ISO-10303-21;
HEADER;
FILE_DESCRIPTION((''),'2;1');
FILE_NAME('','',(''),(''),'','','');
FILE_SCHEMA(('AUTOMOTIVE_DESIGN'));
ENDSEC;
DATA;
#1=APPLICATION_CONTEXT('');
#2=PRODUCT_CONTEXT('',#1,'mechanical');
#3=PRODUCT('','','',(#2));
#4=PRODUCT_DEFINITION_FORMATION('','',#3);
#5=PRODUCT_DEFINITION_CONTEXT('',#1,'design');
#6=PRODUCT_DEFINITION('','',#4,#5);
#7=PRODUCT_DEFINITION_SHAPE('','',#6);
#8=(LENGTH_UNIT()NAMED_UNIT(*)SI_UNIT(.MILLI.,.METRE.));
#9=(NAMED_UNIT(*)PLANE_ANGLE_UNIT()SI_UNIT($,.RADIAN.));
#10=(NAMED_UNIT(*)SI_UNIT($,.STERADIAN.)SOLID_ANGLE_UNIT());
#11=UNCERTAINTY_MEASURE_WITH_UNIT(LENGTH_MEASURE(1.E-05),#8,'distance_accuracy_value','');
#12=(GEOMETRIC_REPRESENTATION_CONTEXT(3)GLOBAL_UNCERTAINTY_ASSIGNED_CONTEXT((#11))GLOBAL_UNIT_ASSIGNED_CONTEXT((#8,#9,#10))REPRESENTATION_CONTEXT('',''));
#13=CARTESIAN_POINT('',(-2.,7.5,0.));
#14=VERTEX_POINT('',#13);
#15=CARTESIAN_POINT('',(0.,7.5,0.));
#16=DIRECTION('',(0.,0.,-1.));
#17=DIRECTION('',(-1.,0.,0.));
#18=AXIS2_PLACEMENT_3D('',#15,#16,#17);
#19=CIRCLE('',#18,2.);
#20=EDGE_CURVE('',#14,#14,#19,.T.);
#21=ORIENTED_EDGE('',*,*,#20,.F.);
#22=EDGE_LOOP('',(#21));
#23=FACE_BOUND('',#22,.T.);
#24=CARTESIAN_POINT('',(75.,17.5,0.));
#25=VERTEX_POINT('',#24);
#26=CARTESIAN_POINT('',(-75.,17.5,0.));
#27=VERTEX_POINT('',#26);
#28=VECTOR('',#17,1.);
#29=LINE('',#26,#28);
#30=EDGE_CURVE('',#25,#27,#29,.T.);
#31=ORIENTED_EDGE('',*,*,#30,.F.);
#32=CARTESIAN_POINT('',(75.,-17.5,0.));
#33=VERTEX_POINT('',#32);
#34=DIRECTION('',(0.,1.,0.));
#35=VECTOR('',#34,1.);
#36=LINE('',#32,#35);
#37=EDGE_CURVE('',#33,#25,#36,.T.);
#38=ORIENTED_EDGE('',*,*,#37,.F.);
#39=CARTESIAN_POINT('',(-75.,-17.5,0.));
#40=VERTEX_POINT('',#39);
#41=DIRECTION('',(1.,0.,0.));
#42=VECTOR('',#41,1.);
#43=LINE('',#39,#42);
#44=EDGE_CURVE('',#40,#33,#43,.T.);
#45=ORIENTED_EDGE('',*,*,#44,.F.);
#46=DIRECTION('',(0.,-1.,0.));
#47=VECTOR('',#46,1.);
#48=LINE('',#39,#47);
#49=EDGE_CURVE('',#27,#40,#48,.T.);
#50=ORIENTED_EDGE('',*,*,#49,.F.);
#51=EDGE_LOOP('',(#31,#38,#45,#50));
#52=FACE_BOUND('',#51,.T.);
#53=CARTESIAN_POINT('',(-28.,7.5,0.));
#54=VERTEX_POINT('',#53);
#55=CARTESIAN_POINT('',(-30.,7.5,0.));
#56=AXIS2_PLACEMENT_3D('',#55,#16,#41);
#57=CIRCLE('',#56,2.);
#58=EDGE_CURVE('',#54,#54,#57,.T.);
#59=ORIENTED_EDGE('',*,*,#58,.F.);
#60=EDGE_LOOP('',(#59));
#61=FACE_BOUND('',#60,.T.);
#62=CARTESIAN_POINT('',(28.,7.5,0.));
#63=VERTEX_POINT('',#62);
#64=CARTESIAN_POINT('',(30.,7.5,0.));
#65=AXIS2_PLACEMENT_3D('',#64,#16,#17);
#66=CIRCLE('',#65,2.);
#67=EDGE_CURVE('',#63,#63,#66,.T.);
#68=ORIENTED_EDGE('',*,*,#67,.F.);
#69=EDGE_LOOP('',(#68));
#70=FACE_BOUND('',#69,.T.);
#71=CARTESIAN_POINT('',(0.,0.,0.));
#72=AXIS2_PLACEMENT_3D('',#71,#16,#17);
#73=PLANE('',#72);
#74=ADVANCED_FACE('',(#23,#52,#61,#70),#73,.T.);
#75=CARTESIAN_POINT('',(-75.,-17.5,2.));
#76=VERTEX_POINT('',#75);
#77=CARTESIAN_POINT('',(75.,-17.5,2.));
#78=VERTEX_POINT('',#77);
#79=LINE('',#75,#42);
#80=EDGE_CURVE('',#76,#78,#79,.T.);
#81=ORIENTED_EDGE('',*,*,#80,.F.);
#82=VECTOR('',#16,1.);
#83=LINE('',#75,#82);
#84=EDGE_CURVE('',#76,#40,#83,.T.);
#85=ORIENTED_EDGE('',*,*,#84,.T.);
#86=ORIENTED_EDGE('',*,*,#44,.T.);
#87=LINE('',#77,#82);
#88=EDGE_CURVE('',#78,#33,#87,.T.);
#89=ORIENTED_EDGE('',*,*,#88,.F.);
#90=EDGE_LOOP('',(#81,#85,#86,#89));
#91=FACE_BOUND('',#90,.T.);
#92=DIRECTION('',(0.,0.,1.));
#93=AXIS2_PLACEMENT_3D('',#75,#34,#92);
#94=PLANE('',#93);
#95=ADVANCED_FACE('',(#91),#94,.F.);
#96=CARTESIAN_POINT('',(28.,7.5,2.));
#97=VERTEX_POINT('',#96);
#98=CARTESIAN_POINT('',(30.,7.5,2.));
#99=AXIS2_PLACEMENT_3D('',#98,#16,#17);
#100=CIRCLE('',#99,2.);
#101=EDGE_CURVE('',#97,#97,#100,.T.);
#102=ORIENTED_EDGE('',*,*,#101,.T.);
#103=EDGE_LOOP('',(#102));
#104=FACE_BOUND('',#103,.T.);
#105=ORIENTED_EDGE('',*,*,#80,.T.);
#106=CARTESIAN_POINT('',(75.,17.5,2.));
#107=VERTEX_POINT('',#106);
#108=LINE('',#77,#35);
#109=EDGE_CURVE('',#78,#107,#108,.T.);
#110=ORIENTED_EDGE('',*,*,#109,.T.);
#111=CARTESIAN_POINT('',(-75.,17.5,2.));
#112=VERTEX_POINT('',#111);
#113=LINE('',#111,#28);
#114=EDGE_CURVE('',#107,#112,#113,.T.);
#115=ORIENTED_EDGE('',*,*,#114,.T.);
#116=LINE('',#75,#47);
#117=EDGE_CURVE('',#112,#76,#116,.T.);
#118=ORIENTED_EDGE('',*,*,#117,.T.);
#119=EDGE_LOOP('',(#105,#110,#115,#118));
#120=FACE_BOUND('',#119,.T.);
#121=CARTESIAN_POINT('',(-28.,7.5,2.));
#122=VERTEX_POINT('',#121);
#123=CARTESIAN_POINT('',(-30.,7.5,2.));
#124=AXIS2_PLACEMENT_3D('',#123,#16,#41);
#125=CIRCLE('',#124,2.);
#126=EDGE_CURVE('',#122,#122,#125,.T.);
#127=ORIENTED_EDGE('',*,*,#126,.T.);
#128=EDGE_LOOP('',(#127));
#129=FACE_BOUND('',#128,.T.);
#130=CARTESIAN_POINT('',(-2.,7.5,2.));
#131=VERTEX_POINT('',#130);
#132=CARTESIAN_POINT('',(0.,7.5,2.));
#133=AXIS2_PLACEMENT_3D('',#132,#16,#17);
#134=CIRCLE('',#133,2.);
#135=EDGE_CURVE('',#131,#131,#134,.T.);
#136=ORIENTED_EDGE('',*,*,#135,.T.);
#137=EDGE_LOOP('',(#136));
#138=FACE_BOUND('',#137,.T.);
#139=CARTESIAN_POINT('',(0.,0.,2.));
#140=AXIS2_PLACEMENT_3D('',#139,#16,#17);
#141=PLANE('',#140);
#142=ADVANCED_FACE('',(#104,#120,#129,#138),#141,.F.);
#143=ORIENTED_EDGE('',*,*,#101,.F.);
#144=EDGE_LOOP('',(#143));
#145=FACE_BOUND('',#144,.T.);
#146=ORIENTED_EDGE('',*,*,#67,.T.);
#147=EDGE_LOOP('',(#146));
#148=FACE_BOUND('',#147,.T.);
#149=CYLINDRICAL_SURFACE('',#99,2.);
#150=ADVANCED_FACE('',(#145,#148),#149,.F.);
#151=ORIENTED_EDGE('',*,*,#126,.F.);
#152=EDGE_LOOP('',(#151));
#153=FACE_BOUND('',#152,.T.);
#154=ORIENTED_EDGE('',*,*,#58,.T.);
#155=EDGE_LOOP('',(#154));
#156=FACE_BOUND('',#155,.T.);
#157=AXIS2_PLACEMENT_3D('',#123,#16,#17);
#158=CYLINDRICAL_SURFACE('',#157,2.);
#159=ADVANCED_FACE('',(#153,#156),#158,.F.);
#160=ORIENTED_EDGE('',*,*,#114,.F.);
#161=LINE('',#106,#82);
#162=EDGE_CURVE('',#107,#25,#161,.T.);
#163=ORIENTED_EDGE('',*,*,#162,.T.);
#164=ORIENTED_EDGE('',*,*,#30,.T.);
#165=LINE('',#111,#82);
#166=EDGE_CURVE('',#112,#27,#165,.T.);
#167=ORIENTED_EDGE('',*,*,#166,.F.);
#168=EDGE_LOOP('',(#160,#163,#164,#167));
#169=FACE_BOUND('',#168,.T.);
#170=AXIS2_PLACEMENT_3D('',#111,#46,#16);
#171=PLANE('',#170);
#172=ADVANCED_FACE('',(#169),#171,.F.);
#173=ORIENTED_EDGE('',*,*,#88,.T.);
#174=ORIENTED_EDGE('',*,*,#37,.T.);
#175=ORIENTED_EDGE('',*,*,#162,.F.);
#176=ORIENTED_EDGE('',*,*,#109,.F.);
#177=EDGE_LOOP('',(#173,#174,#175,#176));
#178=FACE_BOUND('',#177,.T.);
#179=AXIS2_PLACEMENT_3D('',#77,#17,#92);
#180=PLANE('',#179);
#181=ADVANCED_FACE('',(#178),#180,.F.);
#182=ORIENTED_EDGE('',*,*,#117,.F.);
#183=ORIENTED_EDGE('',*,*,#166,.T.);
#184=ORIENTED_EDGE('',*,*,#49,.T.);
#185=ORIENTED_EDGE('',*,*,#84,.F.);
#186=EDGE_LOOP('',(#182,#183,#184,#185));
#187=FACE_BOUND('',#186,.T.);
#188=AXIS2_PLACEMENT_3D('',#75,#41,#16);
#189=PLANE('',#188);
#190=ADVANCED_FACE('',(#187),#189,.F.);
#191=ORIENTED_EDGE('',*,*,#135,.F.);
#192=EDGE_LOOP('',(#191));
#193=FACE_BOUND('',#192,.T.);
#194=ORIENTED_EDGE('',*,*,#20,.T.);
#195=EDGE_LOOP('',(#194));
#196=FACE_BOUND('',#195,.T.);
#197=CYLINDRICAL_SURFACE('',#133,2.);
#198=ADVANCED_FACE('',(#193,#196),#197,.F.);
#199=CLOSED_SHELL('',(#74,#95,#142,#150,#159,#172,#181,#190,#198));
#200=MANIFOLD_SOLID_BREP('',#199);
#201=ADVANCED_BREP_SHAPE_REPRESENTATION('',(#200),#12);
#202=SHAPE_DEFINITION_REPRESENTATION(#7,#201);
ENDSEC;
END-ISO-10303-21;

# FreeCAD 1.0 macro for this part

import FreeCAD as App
import Part
import Sketcher
from FreeCAD import Vector


def add_polygon(sketch, points):
    """Adds a closed chain of lines whose ends are joined by coincident constraints."""
    first, n = sketch.GeometryCount, len(points)
    for a, b in zip(points, points[1:] + points[:1]):
        sketch.addGeometry(Part.LineSegment(App.Vector(*a, 0), App.Vector(*b, 0)), False)
    for i in range(n):
        sketch.addConstraint(Sketcher.Constraint("Coincident", first + i, 2, first + (i + 1) % n, 1))

doc = App.newDocument("Part")
body = doc.addObject("PartDesign::Body", "Body")

# Sketch on XY plane
sketch1 = body.newObject("Sketcher::SketchObject", "Sketch")
sketch1.AttachmentSupport = (doc.getObject("XY_Plane"), [""])
sketch1.MapMode = "FlatFace"
add_polygon(sketch1, [(-75, 17.5), (-75, -17.5), (75, -17.5), (75, 17.5)])  # lines 0-3
sketch1.addConstraint([
    Sketcher.Constraint("Vertical", 0),
    Sketcher.Constraint("Horizontal", 1),
    Sketcher.Constraint("Vertical", 2),
    Sketcher.Constraint("Horizontal", 3),
    Sketcher.Constraint("Symmetric", 0, 2, 2, 2, -1, 1),
    Sketcher.Constraint("DistanceX", 1, 1, 1, 2, 150.0),
    Sketcher.Constraint("DistanceY", 0, 2, 0, 1, 35.0),
])
pad1 = body.newObject("PartDesign::Pad", "Pad")
pad1.Profile = sketch1
pad1.Length = 2

# Sketch on XY plane
sketch2 = body.newObject("Sketcher::SketchObject", "Sketch001")
sketch2.AttachmentSupport = (doc.getObject("XY_Plane"), [""])
sketch2.MapMode = "FlatFace"
sketch2.addGeometry([
    Part.Circle(Vector(-30, 7.5, 0), Vector(0, 0, 1), 2),
    Part.Circle(Vector(0, 7.5, 0), Vector(0, 0, 1), 2),
    Part.Circle(Vector(30, 7.5, 0), Vector(0, 0, 1), 2),
], False)
sketch2.addConstraint([
    Sketcher.Constraint("Equal", 0, 1),
    Sketcher.Constraint("Equal", 1, 2),
    Sketcher.Constraint("Symmetric", 0, 3, 2, 3, -2),
    Sketcher.Constraint("PointOnObject", 1, 3, -2),
    Sketcher.Constraint("Horizontal", 0, 3, 1, 3),
    Sketcher.Constraint("Diameter", 0, 4.0),
    Sketcher.Constraint("DistanceX", 0, 3, -1, 1, 30.0),
    Sketcher.Constraint("DistanceY", -1, 1, 0, 3, 7.5),
])
pocket1 = body.newObject("PartDesign::Pocket", "Pocket")
pocket1.Profile = sketch2
pocket1.Type = "ThroughAll"
pocket1.Reversed = True

doc.recompute()
